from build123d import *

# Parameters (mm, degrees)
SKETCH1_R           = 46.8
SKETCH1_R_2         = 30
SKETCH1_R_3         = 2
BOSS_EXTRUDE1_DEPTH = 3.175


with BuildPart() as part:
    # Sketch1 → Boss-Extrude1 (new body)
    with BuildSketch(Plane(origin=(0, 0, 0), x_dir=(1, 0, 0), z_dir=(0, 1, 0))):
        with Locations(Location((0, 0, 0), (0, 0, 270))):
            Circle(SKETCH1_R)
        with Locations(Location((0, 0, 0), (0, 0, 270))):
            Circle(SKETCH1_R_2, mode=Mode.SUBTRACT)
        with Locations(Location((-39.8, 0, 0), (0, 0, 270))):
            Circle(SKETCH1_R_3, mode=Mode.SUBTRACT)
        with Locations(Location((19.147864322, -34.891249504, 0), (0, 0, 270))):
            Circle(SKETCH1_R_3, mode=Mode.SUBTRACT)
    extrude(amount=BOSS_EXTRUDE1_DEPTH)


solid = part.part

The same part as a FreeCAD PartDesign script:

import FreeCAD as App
import Part
import Sketcher
from FreeCAD import Vector
Q = App.Units.Quantity

doc = App.newDocument("Part")
body = doc.addObject("PartDesign::Body", "Body")

sketch1 = doc.addObject("Sketcher::SketchObject", "Sketch")
body.addObject(sketch1)
sketch1.AttachmentSupport = (doc.XZ_Plane, [""])
sketch1.MapMode = "FlatFace"
sketch1.addGeometry(Part.Circle(Vector(0, 0, 0), Vector(0, 0, 1), 46.8), False)
sketch1.addGeometry(Part.Circle(Vector(-39.8, 0, 0), Vector(0, 0, 1), 2), False)
sketch1.addGeometry(Part.Circle(Vector(0, 0, 0), Vector(0, 0, 1), 30), False)
sketch1.addGeometry(Part.Circle(Vector(19.147864, 34.89125, 0), Vector(0, 0, 1), 2), False)
sketch1.addConstraint(Sketcher.Constraint("Coincident", 0, 3, -1, 1))
sketch1.addConstraint(Sketcher.Constraint("Coincident", 2, 3, -1, 1))
sketch1.addConstraint(Sketcher.Constraint("Equal", 1, 3))
sketch1.addConstraint(Sketcher.Constraint("PointOnObject", 1, 3, -1))
sketch1.addConstraint(Sketcher.Constraint("Diameter", 1, Q("4 mm")))
sketch1.addConstraint(Sketcher.Constraint("Diameter", 2, Q("60 mm")))
sketch1.addConstraint(Sketcher.Constraint("Diameter", 0, Q("93.6 mm")))
sketch1.addConstraint(Sketcher.Constraint("DistanceX", 1, 3, -1, 1, Q("39.8 mm")))
sketch1.addConstraint(Sketcher.Constraint("DistanceY", -1, 1, 3, 3, Q("34.89125 mm")))
sketch1.addConstraint(Sketcher.Constraint("DistanceX", -1, 1, 3, 3, Q("19.147864 mm")))
pad1 = doc.addObject("PartDesign::Pad", "Pad")
body.addObject(pad1)
pad1.Profile = sketch1
pad1.Length = 3.175
pad1.Reversed = True

doc.recompute()
